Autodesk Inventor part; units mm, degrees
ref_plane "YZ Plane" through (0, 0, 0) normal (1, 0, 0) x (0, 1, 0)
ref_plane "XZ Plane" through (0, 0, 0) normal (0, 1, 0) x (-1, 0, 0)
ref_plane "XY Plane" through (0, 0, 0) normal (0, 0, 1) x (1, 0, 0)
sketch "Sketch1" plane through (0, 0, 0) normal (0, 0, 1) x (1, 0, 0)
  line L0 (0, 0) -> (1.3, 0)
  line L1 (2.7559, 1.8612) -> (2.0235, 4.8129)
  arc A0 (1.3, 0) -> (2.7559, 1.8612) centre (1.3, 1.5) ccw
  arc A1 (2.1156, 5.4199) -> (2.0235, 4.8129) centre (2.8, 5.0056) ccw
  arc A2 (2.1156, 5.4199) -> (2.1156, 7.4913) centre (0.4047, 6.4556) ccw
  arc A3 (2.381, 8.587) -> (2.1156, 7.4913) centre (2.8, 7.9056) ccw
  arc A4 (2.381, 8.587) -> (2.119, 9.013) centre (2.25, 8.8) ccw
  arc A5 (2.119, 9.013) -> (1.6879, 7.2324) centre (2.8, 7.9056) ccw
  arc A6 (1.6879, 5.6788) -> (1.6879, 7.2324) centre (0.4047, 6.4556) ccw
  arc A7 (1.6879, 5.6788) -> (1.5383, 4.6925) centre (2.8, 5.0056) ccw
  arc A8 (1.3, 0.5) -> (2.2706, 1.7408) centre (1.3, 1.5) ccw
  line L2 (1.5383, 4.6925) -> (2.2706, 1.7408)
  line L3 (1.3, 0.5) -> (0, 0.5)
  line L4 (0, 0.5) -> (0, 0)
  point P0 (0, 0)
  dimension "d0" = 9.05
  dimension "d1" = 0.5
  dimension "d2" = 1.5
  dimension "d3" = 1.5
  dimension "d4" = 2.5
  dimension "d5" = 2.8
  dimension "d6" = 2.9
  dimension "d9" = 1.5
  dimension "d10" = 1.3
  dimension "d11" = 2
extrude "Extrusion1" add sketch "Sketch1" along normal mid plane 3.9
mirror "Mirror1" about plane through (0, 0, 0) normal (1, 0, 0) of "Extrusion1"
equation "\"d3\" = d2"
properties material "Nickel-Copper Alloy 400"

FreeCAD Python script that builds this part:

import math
import FreeCAD as App
import Part
import Sketcher
Q = App.Units.Quantity

doc = App.newDocument("Part")
body = doc.addObject("PartDesign::Body", "Body")

# Sketch on XY plane
sketch1 = doc.addObject("Sketcher::SketchObject", "Sketch")
body.addObject(sketch1)
sketch1.AttachmentSupport = (doc.XY_Plane, [""])
sketch1.MapMode = "FlatFace"
sketch1.addGeometry([
    Part.LineSegment(App.Vector(0, 0.5, 0), App.Vector(0, 0, 0)),  # 0
    Part.LineSegment(App.Vector(0, 0, 0), App.Vector(1.3, 0, 0)),  # 1
    Part.ArcOfCircle(Part.Circle(App.Vector(1.3, 1.5, 0), App.Vector(0, 0, 1), 1.5), math.radians(-90), math.radians(14)),  # 2
    Part.LineSegment(App.Vector(2.76, 1.86, 0), App.Vector(2.02, 4.81, 0)),  # 3
    Part.ArcOfCircle(Part.Circle(App.Vector(2.8, 5.01, 0), App.Vector(0, 0, 1), 0.8), math.radians(149), math.radians(194)),  # 4
    Part.ArcOfCircle(Part.Circle(App.Vector(0.4, 6.46, 0), App.Vector(0, 0, 1), 2), math.radians(-31), math.radians(31)),  # 5
    Part.ArcOfCircle(Part.Circle(App.Vector(2.8, 7.91, 0), App.Vector(0, 0, 1), 0.8), math.radians(122), math.radians(211)),  # 6
    Part.ArcOfCircle(Part.Circle(App.Vector(2.25, 8.8, 0), App.Vector(0, 0, 1), 0.25), math.radians(-58), math.radians(122)),  # 7
    Part.ArcOfCircle(Part.Circle(App.Vector(2.8, 7.91, 0), App.Vector(0, 0, 1), 1.3), math.radians(122), math.radians(211)),  # 8
    Part.ArcOfCircle(Part.Circle(App.Vector(0.4, 6.46, 0), App.Vector(0, 0, 1), 1.5), math.radians(-31), math.radians(31)),  # 9
    Part.ArcOfCircle(Part.Circle(App.Vector(2.8, 5.01, 0), App.Vector(0, 0, 1), 1.3), math.radians(149), math.radians(194)),  # 10
    Part.LineSegment(App.Vector(1.54, 4.69, 0), App.Vector(2.27, 1.74, 0)),  # 11
    Part.ArcOfCircle(Part.Circle(App.Vector(1.3, 1.5, 0), App.Vector(0, 0, 1), 1), math.radians(-90), math.radians(14)),  # 12
    Part.LineSegment(App.Vector(1.3, 0.5, 0), App.Vector(0, 0.5, 0)),  # 13
], False)
sketch1.addConstraint([
    Sketcher.Constraint("Coincident", 0, 2, 1, 1),
    Sketcher.Constraint("Tangent", 1, 2, 2, 1),
    Sketcher.Constraint("Tangent", 2, 2, 3, 1),
    Sketcher.Constraint("Tangent", 3, 2, 4, 2),
    Sketcher.Constraint("Tangent", 4, 1, 5, 1),
    Sketcher.Constraint("Tangent", 5, 2, 6, 2),
    Sketcher.Constraint("Tangent", 6, 1, 7, 1),
    Sketcher.Constraint("Tangent", 7, 2, 8, 1),
    Sketcher.Constraint("Tangent", 8, 2, 9, 2),
    Sketcher.Constraint("Tangent", 9, 1, 10, 1),
    Sketcher.Constraint("Tangent", 10, 2, 11, 1),
    Sketcher.Constraint("Tangent", 11, 2, 12, 2),
    Sketcher.Constraint("Tangent", 12, 1, 13, 1),
    Sketcher.Constraint("Coincident", 13, 2, 0, 1),
    Sketcher.Constraint("Vertical", 0),
    Sketcher.Constraint("Horizontal", 1),
    Sketcher.Constraint("Horizontal", 13),
    Sketcher.Constraint("Coincident", 0, 2, -1, 1),
    Sketcher.Constraint("Coincident", 8, 3, 6, 3),
    Sketcher.Constraint("Coincident", 9, 3, 5, 3),
    Sketcher.Constraint("Coincident", 10, 3, 4, 3),
    Sketcher.Constraint("Coincident", 12, 3, 2, 3),
    Sketcher.Constraint("Equal", 4, 6),
    Sketcher.Constraint("Equal", 2, 9),
    Sketcher.Constraint("Parallel", 3, 11),
    Sketcher.Constraint("Vertical", 4, 3, 6, 3),
    Sketcher.Constraint("Radius", 5, Q("2 mm")),
    Sketcher.Constraint("Radius", 12, Q("1 mm")),
    Sketcher.Constraint("Radius", 8, Q("1.3 mm")),
    Sketcher.Constraint("DistanceX", 1, 1, 1, 2, Q("1.3 mm")),
    Sketcher.Constraint("DistanceX", -1, 1, 4, 3, Q("2.8 mm")),
    Sketcher.Constraint("DistanceY", 4, 3, 6, 3, Q("2.9 mm")),
    Sketcher.Constraint("DistanceY", -1, 1, 7, 3, Q("8.8 mm")),
    Sketcher.Constraint("DistanceX", -1, 1, 7, 3, Q("2.25 mm")),
])
pad1 = doc.addObject("PartDesign::Pad", "Pad")
body.addObject(pad1)
pad1.Profile = sketch1
pad1.Length = 3.9
pad1.Midplane = True
doc.recompute()

mirrored = doc.addObject("PartDesign::Mirrored", "Mirrored")
body.addObject(mirrored)
mirrored.Originals = [pad1]
mirrored.MirrorPlane = (doc.YZ_Plane, [""])
body.Tip = mirrored

doc.recompute()
